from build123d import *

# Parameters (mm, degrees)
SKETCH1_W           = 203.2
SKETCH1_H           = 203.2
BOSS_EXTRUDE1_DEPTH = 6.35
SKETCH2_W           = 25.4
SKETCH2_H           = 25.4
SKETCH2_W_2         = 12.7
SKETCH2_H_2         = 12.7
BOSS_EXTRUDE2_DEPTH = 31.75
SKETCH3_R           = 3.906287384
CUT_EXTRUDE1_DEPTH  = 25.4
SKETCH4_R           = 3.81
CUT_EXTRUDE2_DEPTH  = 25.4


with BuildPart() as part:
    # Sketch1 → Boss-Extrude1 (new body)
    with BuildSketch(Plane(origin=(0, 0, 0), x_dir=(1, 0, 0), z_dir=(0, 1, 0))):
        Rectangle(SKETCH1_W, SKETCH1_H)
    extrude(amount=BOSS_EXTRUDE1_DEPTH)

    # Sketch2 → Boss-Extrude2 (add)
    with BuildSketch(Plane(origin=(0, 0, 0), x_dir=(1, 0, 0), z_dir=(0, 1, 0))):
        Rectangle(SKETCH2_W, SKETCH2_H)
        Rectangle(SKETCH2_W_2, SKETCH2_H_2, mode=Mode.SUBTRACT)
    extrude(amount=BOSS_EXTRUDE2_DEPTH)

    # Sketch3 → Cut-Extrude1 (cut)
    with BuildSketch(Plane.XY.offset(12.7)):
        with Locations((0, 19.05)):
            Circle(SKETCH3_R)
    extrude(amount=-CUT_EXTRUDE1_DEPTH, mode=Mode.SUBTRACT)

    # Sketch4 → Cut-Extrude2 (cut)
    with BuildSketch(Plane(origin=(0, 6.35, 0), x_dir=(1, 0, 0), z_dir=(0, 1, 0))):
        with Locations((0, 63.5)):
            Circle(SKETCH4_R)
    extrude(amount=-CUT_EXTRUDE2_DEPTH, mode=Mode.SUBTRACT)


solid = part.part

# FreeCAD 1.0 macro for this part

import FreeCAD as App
import Part
import Sketcher
from FreeCAD import Vector
Q = App.Units.Quantity


def add_polygon(sketch, points):
    """Adds a closed chain of lines whose ends are joined by coincident constraints."""
    first, n = sketch.GeometryCount, len(points)
    for a, b in zip(points, points[1:] + points[:1]):
        sketch.addGeometry(Part.LineSegment(App.Vector(*a, 0), App.Vector(*b, 0)), False)
    for i in range(n):
        sketch.addConstraint(Sketcher.Constraint("Coincident", first + i, 2, first + (i + 1) % n, 1))

doc = App.newDocument("Part")
body = doc.addObject("PartDesign::Body", "Body")

# Sketch on XZ plane
sketch1 = doc.addObject("Sketcher::SketchObject", "Sketch")
body.addObject(sketch1)
sketch1.AttachmentSupport = (doc.XZ_Plane, [""])
sketch1.MapMode = "FlatFace"
add_polygon(sketch1, [(-102, -102), (-102, 102), (102, 102), (102, -102)])  # lines 0-3
sketch1.addConstraint(Sketcher.Constraint("Vertical", 0))
sketch1.addConstraint(Sketcher.Constraint("Horizontal", 1))
sketch1.addConstraint(Sketcher.Constraint("Vertical", 2))
sketch1.addConstraint(Sketcher.Constraint("Horizontal", 3))
sketch1.addConstraint(Sketcher.Constraint("Symmetric", 0, 2, 2, 2, -1, 1))
sketch1.addConstraint(Sketcher.Constraint("Equal", 3, 0))
sketch1.addConstraint(Sketcher.Constraint("DistanceX", 1, 1, 1, 2, Q("8 in")))
pad1 = doc.addObject("PartDesign::Pad", "Pad")
body.addObject(pad1)
pad1.Profile = sketch1
pad1.Length = Q("0.25 in")
pad1.Reversed = True

# Sketch on XZ plane
sketch2 = doc.addObject("Sketcher::SketchObject", "Sketch001")
body.addObject(sketch2)
sketch2.AttachmentSupport = (doc.XZ_Plane, [""])
sketch2.MapMode = "FlatFace"
add_polygon(sketch2, [(-13, -13), (-13, 13), (13, 13), (13, -13)])  # lines 0-3
add_polygon(sketch2, [(6, 6), (-6, 6), (-6, -6), (6, -6)])  # lines 4-7
sketch2.addConstraint(Sketcher.Constraint("Vertical", 0))
sketch2.addConstraint(Sketcher.Constraint("Horizontal", 1))
sketch2.addConstraint(Sketcher.Constraint("Vertical", 2))
sketch2.addConstraint(Sketcher.Constraint("Horizontal", 3))
sketch2.addConstraint(Sketcher.Constraint("Horizontal", 4))
sketch2.addConstraint(Sketcher.Constraint("Vertical", 5))
sketch2.addConstraint(Sketcher.Constraint("Horizontal", 6))
sketch2.addConstraint(Sketcher.Constraint("Vertical", 7))
sketch2.addConstraint(Sketcher.Constraint("Symmetric", 0, 2, 2, 2, -1, 1))
sketch2.addConstraint(Sketcher.Constraint("Symmetric", 4, 2, 6, 2, -1, 1))
sketch2.addConstraint(Sketcher.Constraint("Equal", 3, 0))
sketch2.addConstraint(Sketcher.Constraint("Equal", 6, 5))
sketch2.addConstraint(Sketcher.Constraint("DistanceX", 1, 1, 1, 2, Q("1 in")))
sketch2.addConstraint(Sketcher.Constraint("DistanceX", 4, 2, 4, 1, Q("0.5 in")))
pad2 = doc.addObject("PartDesign::Pad", "Pad001")
body.addObject(pad2)
pad2.Profile = sketch2
pad2.Length = Q("1.25 in")
pad2.Reversed = True

# Sketch on XY plane
sketch3 = doc.addObject("Sketcher::SketchObject", "Sketch002")
body.addObject(sketch3)
sketch3.AttachmentSupport = (doc.XY_Plane, [""])
sketch3.MapMode = "FlatFace"
sketch3.AttachmentOffset = App.Placement(Vector(0, 0, 0.5 * 25.4), App.Rotation())
sketch3.addGeometry(Part.Circle(Vector(0, 19.1, 0), Vector(0, 0, 1), 3.9), False)
sketch3.addConstraint(Sketcher.Constraint("PointOnObject", 0, 3, -2))
sketch3.addConstraint(Sketcher.Constraint("DistanceY", -1, 1, 0, 3, Q("0.75 in")))
sketch3.addConstraint(Sketcher.Constraint("Diameter", 0, Q("7.812575 mm")))
pocket1 = doc.addObject("PartDesign::Pocket", "Pocket")
body.addObject(pocket1)
pocket1.Profile = sketch3
pocket1.Length = Q("1 in")

# Sketch on XZ plane
sketch4 = doc.addObject("Sketcher::SketchObject", "Sketch003")
body.addObject(sketch4)
sketch4.AttachmentSupport = (doc.XZ_Plane, [""])
sketch4.MapMode = "FlatFace"
sketch4.AttachmentOffset = App.Placement(Vector(0, 0, -0.25 * 25.4), App.Rotation())
sketch4.addGeometry(Part.Circle(Vector(0, -63.5, 0), Vector(0, 0, 1), 3.8), False)
sketch4.addConstraint(Sketcher.Constraint("PointOnObject", 0, 3, -2))
sketch4.addConstraint(Sketcher.Constraint("Diameter", 0, Q("0.3 in")))
sketch4.addConstraint(Sketcher.Constraint("DistanceY", 0, 3, -1, 1, Q("2.5 in")))
pocket2 = doc.addObject("PartDesign::Pocket", "Pocket001")
body.addObject(pocket2)
pocket2.Profile = sketch4
pocket2.Length = Q("1 in")
pocket2.Reversed = True

doc.recompute()
